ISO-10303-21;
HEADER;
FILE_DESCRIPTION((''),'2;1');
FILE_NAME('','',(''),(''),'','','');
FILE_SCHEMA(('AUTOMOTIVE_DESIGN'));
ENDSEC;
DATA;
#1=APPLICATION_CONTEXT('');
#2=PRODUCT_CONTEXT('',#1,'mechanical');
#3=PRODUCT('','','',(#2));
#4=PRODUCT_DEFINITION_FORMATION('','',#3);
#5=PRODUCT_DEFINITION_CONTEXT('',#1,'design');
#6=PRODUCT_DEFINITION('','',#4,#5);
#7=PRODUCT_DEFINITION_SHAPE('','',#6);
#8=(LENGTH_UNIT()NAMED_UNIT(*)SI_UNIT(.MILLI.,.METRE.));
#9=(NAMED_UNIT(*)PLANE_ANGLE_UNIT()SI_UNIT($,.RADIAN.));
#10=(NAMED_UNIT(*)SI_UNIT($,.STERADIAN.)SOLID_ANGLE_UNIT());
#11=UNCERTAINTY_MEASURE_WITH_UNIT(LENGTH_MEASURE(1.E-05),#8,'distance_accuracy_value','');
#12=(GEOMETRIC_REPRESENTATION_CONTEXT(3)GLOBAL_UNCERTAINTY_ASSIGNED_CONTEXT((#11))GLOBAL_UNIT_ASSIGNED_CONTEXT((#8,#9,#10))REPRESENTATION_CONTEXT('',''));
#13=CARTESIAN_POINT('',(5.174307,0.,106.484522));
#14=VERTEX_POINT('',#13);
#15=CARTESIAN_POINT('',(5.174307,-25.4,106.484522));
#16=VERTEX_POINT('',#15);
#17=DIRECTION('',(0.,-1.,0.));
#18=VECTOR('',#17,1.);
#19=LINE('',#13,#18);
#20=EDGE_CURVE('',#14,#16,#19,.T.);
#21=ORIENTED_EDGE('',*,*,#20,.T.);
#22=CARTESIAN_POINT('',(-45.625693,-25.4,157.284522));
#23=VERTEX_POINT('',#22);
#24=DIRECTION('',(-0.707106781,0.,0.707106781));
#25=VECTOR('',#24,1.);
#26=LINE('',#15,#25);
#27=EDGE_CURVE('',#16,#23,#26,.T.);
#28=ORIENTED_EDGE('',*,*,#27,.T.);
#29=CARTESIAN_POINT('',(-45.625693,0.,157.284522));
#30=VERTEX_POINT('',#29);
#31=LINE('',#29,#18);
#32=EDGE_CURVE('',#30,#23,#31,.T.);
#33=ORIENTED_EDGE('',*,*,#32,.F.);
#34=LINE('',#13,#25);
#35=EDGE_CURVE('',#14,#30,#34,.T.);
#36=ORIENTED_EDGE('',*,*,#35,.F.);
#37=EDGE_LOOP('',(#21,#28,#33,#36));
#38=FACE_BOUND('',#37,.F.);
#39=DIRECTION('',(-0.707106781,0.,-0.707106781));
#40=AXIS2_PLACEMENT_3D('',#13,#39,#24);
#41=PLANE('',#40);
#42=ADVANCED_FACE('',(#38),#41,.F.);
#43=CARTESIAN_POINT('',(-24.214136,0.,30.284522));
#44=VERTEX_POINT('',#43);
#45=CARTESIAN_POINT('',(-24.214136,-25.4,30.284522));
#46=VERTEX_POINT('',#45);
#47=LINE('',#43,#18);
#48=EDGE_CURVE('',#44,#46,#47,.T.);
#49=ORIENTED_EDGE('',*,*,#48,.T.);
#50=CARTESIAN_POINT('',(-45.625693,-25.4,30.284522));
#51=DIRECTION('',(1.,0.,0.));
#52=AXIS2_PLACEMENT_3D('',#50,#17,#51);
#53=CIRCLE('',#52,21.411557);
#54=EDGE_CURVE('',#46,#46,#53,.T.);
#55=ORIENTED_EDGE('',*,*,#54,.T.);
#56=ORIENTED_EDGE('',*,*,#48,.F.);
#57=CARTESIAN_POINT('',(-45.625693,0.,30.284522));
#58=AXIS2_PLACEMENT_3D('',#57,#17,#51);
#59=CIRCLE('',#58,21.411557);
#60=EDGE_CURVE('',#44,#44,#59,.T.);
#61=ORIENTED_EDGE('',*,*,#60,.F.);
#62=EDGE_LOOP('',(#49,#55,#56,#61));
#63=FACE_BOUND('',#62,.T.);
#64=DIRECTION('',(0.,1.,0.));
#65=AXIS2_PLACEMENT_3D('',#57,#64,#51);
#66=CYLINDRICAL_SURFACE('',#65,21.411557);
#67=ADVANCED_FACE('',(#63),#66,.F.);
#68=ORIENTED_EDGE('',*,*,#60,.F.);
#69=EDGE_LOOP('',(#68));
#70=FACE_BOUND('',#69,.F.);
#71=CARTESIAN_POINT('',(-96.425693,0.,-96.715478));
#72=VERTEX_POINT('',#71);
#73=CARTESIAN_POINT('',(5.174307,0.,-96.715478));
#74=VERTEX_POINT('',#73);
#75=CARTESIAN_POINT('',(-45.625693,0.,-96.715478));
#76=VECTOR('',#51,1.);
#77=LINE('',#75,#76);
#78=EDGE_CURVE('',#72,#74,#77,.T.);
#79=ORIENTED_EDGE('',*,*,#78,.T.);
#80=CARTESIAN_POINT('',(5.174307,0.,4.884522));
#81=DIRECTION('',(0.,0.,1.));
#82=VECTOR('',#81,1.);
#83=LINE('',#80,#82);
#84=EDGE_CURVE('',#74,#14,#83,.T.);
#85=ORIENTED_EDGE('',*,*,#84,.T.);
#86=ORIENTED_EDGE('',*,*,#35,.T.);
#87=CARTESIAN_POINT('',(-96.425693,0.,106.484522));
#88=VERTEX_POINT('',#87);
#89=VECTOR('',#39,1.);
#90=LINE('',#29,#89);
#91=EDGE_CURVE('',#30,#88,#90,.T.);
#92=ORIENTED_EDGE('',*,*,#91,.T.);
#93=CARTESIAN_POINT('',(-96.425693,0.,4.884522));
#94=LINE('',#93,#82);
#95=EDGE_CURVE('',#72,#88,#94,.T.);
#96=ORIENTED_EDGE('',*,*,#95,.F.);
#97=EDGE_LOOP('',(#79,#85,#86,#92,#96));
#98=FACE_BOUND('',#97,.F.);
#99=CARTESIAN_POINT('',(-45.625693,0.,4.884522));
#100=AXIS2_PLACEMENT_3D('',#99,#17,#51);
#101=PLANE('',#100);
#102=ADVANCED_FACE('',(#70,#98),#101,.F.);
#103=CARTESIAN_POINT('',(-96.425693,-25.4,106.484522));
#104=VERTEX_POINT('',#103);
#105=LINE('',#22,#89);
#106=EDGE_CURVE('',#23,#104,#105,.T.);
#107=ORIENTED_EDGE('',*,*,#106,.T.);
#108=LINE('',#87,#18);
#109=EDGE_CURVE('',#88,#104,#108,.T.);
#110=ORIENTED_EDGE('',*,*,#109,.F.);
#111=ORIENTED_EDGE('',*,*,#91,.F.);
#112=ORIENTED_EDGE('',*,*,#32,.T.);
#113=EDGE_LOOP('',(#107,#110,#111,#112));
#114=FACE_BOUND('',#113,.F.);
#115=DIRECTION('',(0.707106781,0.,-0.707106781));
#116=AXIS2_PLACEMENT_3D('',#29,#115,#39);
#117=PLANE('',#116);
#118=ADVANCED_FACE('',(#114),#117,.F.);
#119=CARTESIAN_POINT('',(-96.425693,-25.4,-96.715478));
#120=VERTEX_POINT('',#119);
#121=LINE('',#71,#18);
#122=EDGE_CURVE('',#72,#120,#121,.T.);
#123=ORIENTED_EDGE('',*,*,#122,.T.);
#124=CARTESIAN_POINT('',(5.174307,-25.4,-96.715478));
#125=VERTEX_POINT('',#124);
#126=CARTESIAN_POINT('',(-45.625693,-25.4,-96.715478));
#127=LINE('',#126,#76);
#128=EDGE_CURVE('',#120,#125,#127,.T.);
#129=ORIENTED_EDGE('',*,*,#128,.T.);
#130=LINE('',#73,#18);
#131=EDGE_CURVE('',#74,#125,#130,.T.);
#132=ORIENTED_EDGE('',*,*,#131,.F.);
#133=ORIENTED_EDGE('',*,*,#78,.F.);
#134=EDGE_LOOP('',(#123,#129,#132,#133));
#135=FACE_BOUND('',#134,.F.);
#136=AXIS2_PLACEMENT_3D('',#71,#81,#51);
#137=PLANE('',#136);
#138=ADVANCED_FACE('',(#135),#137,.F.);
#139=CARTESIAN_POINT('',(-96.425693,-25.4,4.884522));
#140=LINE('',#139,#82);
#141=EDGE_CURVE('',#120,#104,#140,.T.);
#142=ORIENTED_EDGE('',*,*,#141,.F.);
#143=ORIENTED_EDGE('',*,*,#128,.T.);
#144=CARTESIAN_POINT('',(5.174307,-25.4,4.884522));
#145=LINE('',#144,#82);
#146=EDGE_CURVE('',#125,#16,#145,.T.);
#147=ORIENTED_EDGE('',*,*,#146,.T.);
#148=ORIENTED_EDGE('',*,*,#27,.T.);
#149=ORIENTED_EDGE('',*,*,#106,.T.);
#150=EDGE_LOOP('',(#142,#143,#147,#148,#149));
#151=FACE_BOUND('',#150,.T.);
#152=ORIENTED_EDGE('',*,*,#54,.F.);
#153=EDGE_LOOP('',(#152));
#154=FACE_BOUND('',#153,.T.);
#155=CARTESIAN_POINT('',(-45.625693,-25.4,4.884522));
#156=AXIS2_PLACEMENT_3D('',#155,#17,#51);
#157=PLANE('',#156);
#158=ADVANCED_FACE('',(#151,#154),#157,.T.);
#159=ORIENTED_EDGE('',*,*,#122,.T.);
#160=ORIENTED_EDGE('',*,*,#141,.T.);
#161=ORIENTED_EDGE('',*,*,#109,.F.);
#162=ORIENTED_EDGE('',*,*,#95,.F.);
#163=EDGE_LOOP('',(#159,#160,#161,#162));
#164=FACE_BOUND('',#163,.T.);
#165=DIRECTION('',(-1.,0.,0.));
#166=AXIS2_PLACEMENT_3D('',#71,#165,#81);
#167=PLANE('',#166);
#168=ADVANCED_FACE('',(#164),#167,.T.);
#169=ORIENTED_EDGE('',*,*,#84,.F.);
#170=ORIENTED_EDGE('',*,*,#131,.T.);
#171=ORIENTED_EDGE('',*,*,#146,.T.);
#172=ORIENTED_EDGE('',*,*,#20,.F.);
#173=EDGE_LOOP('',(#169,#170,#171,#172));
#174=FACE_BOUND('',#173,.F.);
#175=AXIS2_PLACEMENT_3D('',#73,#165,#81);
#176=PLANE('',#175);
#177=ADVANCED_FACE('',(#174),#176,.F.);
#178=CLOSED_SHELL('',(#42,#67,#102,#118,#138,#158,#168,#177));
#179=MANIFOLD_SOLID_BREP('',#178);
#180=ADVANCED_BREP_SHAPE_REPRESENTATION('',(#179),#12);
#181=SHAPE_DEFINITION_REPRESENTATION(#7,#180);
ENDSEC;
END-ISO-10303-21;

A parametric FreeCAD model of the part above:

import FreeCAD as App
import Part
import Sketcher
from FreeCAD import Vector
Q = App.Units.Quantity


def add_polygon(sketch, points):
    """Adds a closed chain of lines whose ends are joined by coincident constraints."""
    first, n = sketch.GeometryCount, len(points)
    for a, b in zip(points, points[1:] + points[:1]):
        sketch.addGeometry(Part.LineSegment(App.Vector(*a, 0), App.Vector(*b, 0)), False)
    for i in range(n):
        sketch.addConstraint(Sketcher.Constraint("Coincident", first + i, 2, first + (i + 1) % n, 1))

doc = App.newDocument("Part")
params = doc.addObject("Spreadsheet::Sheet", "Params")
for row, (alias, value) in enumerate([
    ("sketch1_width", "4 in"),
    ("sketch1_height", "8 in"),
    ("pad1_length", "1 in"),
], start=1):
    params.set(f"A{row}", alias)
    params.set(f"B{row}", "=" + value)
    params.setAlias(f"B{row}", alias)

body = doc.addObject("PartDesign::Body", "Body")

sketch1 = body.newObject("Sketcher::SketchObject", "Sketch")
sketch1.AttachmentSupport = (doc.getObject("XZ_Plane"), [""])
sketch1.MapMode = "FlatFace"
add_polygon(sketch1, [(-96, 106), (-96, -97), (5, -97), (5, 106), (-46, 157)])
sketch1.addGeometry(Part.Circle(Vector(-46, 30, 0), Vector(0, 0, 1), 21), False)
sketch1.addConstraint([
    Sketcher.Constraint("Vertical", 0),
    Sketcher.Constraint("Horizontal", 1),
    Sketcher.Constraint("Vertical", 2),
    Sketcher.Constraint("Perpendicular", 3, 4),
    Sketcher.Constraint("Horizontal", 2, 2, 4, 2),
    Sketcher.Constraint("Vertical", 5, 3, 3, 2),
    Sketcher.Constraint("Equal", 3, 4),
    Sketcher.Constraint("DistanceX", 1, 1, 1, 2, Q("4 in")),
    Sketcher.Constraint("DistanceY", 0, 2, 0, 1, Q("8 in")),
    Sketcher.Constraint("DistanceY", 0, 2, 5, 3, Q("5 in")),
    Sketcher.Constraint("Diameter", 5, 42.823114),
    Sketcher.Constraint("DistanceY", -1, 1, 5, 3, 30.284522),
    Sketcher.Constraint("DistanceX", 5, 3, -1, 1, 45.625693),
])
sketch1.setExpression("Constraints[12]", "Params.sketch1_width")
sketch1.setExpression("Constraints[13]", "Params.sketch1_height")
pad1 = body.newObject("PartDesign::Pad", "Pad")
pad1.Profile = sketch1
pad1.setExpression("Length", "Params.pad1_length")

doc.recompute()
